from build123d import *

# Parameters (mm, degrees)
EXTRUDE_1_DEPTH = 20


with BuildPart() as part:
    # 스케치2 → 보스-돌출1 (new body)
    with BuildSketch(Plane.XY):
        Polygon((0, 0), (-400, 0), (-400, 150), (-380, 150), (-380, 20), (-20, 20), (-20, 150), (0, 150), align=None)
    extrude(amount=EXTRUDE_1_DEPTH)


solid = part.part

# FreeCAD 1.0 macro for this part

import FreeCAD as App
import Part
import Sketcher

V = App.Vector


def add_polygon(sketch, points):
    """Adds a closed chain of lines whose ends are joined by coincident constraints."""
    first, n = sketch.GeometryCount, len(points)
    for a, b in zip(points, points[1:] + points[:1]):
        sketch.addGeometry(Part.LineSegment(App.Vector(*a, 0), App.Vector(*b, 0)), False)
    for i in range(n):
        sketch.addConstraint(Sketcher.Constraint("Coincident", first + i, 2, first + (i + 1) % n, 1))

doc = App.newDocument("Part")
params = doc.addObject("Spreadsheet::Sheet", "Params")
for row, (alias, value) in enumerate([
    ("sketch1_width", "400 mm"),
    ("sketch1_width2", "20 mm"),
    ("sketch1_height", "150 mm"),
    ("sketch1_height2", "130 mm"),
    ("pad1_length", "20 mm"),
], start=1):
    params.set(f"A{row}", alias)
    params.set(f"B{row}", "=" + value)
    params.setAlias(f"B{row}", alias)

body = doc.addObject("PartDesign::Body", "Body")

sketch1 = doc.addObject("Sketcher::SketchObject", "Sketch")
body.addObject(sketch1)
sketch1.AttachmentSupport = (doc.XY_Plane, [""])
sketch1.MapMode = "FlatFace"
add_polygon(sketch1, [(-400, 0), (0, 0), (0, 150), (-20, 150), (-20, 20), (-380, 20), (-380, 150), (-400, 150)])
sketch1.addConstraint(Sketcher.Constraint("Horizontal", 0))
sketch1.addConstraint(Sketcher.Constraint("Vertical", 1))
sketch1.addConstraint(Sketcher.Constraint("Horizontal", 2))
sketch1.addConstraint(Sketcher.Constraint("Vertical", 3))
sketch1.addConstraint(Sketcher.Constraint("Horizontal", 4))
sketch1.addConstraint(Sketcher.Constraint("Vertical", 5))
sketch1.addConstraint(Sketcher.Constraint("Horizontal", 6))
sketch1.addConstraint(Sketcher.Constraint("Vertical", 7))
sketch1.addConstraint(Sketcher.Constraint("Coincident", 0, 2, -1, 1))
sketch1.addConstraint(Sketcher.Constraint("Horizontal", 2, 2, 5, 2))
sketch1.addConstraint(Sketcher.Constraint("Equal", 2, 6))
sketch1.addConstraint(Sketcher.Constraint("DistanceX", 0, 1, 0, 2, 400.0))
sketch1.addConstraint(Sketcher.Constraint("DistanceX", 2, 2, 2, 1, 20.0))
sketch1.addConstraint(Sketcher.Constraint("DistanceY", 1, 1, 1, 2, 150.0))
sketch1.addConstraint(Sketcher.Constraint("DistanceY", 3, 2, 3, 1, 130.0))
sketch1.setExpression("Constraints[19]", "Params.sketch1_width")
sketch1.setExpression("Constraints[20]", "Params.sketch1_width2")
sketch1.setExpression("Constraints[21]", "Params.sketch1_height")
sketch1.setExpression("Constraints[22]", "Params.sketch1_height2")
pad1 = doc.addObject("PartDesign::Pad", "Pad")
body.addObject(pad1)
pad1.Profile = sketch1
pad1.setExpression("Length", "Params.pad1_length")

doc.recompute()
